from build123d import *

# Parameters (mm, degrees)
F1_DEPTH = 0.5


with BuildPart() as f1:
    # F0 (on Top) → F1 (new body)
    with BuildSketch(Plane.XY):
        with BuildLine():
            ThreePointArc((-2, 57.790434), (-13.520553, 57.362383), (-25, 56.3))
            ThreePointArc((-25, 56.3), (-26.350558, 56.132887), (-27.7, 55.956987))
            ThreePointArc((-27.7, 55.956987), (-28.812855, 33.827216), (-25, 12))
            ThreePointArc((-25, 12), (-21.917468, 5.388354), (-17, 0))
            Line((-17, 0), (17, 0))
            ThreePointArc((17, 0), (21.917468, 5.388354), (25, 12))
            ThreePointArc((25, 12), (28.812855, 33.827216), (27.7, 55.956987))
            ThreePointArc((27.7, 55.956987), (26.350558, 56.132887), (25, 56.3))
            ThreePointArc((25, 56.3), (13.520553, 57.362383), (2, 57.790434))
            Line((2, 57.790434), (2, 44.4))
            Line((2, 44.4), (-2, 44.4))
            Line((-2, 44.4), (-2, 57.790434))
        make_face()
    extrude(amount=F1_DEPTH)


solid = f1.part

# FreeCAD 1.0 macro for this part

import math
import FreeCAD as App
import Part
import Sketcher
from FreeCAD import Vector

doc = App.newDocument("Part")
params = doc.addObject("Spreadsheet::Sheet", "Params")
for row, (alias, value) in enumerate([
    ("sketch1_width", "34 mm"),
    ("sketch1_width2", "4 mm"),
    ("pad1_length", "0.5 mm"),
], start=1):
    params.set(f"A{row}", alias)
    params.set(f"B{row}", "=" + value)
    params.setAlias(f"B{row}", alias)

body = doc.addObject("PartDesign::Body", "Body")

# Sketch on XY plane
sketch1 = body.newObject("Sketcher::SketchObject", "Sketch")
sketch1.AttachmentSupport = (doc.getObject("XY_Plane"), [""])
sketch1.MapMode = "FlatFace"
sketch1.addGeometry([
    Part.ArcOfCircle(Part.Circle(Vector(-0.000009, -151.283231, 0), Vector(0, 0, 1), 209.083231), math.radians(90.548073), math.radians(96.867262)),  # 0
    Part.ArcOfCircle(Part.Circle(Vector(-0.000579, -151.278916, 0), Vector(0, 0, 1), 209.078879), math.radians(96.867248), math.radians(97.613106)),  # 1
    Part.ArcOfCircle(Part.Circle(Vector(70.486501, 39.926548, 0), Vector(0, 0, 1), 99.486502), math.radians(170.727404), math.radians(196.3024)),  # 2
    Part.ArcOfCircle(Part.Circle(Vector(-1.839528, 18.773648, 0), Vector(0, 0, 1), 24.130681), math.radians(-163.697602), math.radians(-128.922263)),  # 3
    Part.LineSegment(Vector(-17, 0, 0), Vector(17, 0, 0)),  # 4
    Part.ArcOfCircle(Part.Circle(Vector(1.839528, 18.773648, 0), Vector(0, 0, 1), 24.130681), math.radians(-51.077737), math.radians(-16.302398)),  # 5
    Part.ArcOfCircle(Part.Circle(Vector(-70.486501, 39.926548, 0), Vector(0, 0, 1), 99.486502), math.radians(-16.3024), math.radians(9.272596)),  # 6
    Part.ArcOfCircle(Part.Circle(Vector(0.000579, -151.278916, 0), Vector(0, 0, 1), 209.078879), math.radians(82.386894), math.radians(83.132752)),  # 7
    Part.ArcOfCircle(Part.Circle(Vector(0.000009, -151.283231, 0), Vector(0, 0, 1), 209.083231), math.radians(83.132738), math.radians(89.451927)),  # 8
    Part.LineSegment(Vector(2, 57.790434, 0), Vector(2, 44.4, 0)),  # 9
    Part.LineSegment(Vector(2, 44.4, 0), Vector(-2, 44.4, 0)),  # 10
    Part.LineSegment(Vector(-2, 44.4, 0), Vector(-2, 57.790434, 0)),  # 11
], False)
sketch1.addConstraint([
    Sketcher.Constraint("Coincident", 0, 2, 1, 1),
    Sketcher.Constraint("Coincident", 1, 2, 2, 1),
    Sketcher.Constraint("Coincident", 2, 2, 3, 1),
    Sketcher.Constraint("Coincident", 3, 2, 4, 1),
    Sketcher.Constraint("Coincident", 4, 2, 5, 1),
    Sketcher.Constraint("Coincident", 5, 2, 6, 1),
    Sketcher.Constraint("Coincident", 6, 2, 7, 1),
    Sketcher.Constraint("Coincident", 7, 2, 8, 1),
    Sketcher.Constraint("Coincident", 8, 2, 9, 1),
    Sketcher.Constraint("Coincident", 9, 2, 10, 1),
    Sketcher.Constraint("Coincident", 10, 2, 11, 1),
    Sketcher.Constraint("Coincident", 11, 2, 0, 1),
    Sketcher.Constraint("Horizontal", 4),
    Sketcher.Constraint("Vertical", 9),
    Sketcher.Constraint("Horizontal", 10),
    Sketcher.Constraint("Vertical", 11),
    Sketcher.Constraint("PointOnObject", 3, 2, -1),
    Sketcher.Constraint("DistanceX", 4, 1, 4, 2, 34.0),
    Sketcher.Constraint("DistanceX", 10, 2, 10, 1, 4.0),
    Sketcher.Constraint("DistanceX", 0, 2, -1, 1, 25.0),
    Sketcher.Constraint("DistanceX", 2, 2, -1, 1, 25.0),
    Sketcher.Constraint("DistanceY", -1, 1, 2, 2, 12.0),
    Sketcher.Constraint("DistanceX", 3, 2, -1, 1, 17.0),
    Sketcher.Constraint("DistanceX", -1, 1, 5, 2, 25.0),
    Sketcher.Constraint("DistanceY", -1, 1, 5, 2, 12.0),
    Sketcher.Constraint("DistanceX", -1, 1, 7, 2, 25.0),
    Sketcher.Constraint("DistanceX", -1, 1, 9, 2, 2.0),
    Sketcher.Constraint("DistanceY", -1, 1, 0, 2, 56.3),
    Sketcher.Constraint("DistanceX", 1, 2, -1, 1, 27.7),
    Sketcher.Constraint("DistanceX", -1, 1, 6, 2, 27.7),
    Sketcher.Constraint("DistanceY", -1, 1, 7, 2, 56.3),
    Sketcher.Constraint("DistanceY", -1, 1, 9, 2, 44.4),
    Sketcher.Constraint("Radius", 2, 99.486502),
    Sketcher.Constraint("Radius", 6, 99.486502),
    Sketcher.Constraint("Radius", 0, 209.083231),
    Sketcher.Constraint("Radius", 1, 209.078879),
    Sketcher.Constraint("Radius", 3, 24.130681),
    Sketcher.Constraint("Radius", 5, 24.130681),
    Sketcher.Constraint("Radius", 7, 209.078879),
    Sketcher.Constraint("Radius", 8, 209.083231),
    Sketcher.Constraint("DistanceY", 3, 3, 2, 3, 21.1529),
    Sketcher.Constraint("DistanceY", 3, 3, 6, 3, 21.1529),
    Sketcher.Constraint("DistanceY", 9, 2, 9, 1, 13.390434),
    Sketcher.Constraint("DistanceY", 11, 1, 11, 2, 13.390434),
])
sketch1.setExpression("Constraints[17]", "Params.sketch1_width")
sketch1.setExpression("Constraints[18]", "Params.sketch1_width2")
pad1 = body.newObject("PartDesign::Pad", "Pad")
pad1.Profile = sketch1
pad1.setExpression("Length", "Params.pad1_length")

doc.recompute()
